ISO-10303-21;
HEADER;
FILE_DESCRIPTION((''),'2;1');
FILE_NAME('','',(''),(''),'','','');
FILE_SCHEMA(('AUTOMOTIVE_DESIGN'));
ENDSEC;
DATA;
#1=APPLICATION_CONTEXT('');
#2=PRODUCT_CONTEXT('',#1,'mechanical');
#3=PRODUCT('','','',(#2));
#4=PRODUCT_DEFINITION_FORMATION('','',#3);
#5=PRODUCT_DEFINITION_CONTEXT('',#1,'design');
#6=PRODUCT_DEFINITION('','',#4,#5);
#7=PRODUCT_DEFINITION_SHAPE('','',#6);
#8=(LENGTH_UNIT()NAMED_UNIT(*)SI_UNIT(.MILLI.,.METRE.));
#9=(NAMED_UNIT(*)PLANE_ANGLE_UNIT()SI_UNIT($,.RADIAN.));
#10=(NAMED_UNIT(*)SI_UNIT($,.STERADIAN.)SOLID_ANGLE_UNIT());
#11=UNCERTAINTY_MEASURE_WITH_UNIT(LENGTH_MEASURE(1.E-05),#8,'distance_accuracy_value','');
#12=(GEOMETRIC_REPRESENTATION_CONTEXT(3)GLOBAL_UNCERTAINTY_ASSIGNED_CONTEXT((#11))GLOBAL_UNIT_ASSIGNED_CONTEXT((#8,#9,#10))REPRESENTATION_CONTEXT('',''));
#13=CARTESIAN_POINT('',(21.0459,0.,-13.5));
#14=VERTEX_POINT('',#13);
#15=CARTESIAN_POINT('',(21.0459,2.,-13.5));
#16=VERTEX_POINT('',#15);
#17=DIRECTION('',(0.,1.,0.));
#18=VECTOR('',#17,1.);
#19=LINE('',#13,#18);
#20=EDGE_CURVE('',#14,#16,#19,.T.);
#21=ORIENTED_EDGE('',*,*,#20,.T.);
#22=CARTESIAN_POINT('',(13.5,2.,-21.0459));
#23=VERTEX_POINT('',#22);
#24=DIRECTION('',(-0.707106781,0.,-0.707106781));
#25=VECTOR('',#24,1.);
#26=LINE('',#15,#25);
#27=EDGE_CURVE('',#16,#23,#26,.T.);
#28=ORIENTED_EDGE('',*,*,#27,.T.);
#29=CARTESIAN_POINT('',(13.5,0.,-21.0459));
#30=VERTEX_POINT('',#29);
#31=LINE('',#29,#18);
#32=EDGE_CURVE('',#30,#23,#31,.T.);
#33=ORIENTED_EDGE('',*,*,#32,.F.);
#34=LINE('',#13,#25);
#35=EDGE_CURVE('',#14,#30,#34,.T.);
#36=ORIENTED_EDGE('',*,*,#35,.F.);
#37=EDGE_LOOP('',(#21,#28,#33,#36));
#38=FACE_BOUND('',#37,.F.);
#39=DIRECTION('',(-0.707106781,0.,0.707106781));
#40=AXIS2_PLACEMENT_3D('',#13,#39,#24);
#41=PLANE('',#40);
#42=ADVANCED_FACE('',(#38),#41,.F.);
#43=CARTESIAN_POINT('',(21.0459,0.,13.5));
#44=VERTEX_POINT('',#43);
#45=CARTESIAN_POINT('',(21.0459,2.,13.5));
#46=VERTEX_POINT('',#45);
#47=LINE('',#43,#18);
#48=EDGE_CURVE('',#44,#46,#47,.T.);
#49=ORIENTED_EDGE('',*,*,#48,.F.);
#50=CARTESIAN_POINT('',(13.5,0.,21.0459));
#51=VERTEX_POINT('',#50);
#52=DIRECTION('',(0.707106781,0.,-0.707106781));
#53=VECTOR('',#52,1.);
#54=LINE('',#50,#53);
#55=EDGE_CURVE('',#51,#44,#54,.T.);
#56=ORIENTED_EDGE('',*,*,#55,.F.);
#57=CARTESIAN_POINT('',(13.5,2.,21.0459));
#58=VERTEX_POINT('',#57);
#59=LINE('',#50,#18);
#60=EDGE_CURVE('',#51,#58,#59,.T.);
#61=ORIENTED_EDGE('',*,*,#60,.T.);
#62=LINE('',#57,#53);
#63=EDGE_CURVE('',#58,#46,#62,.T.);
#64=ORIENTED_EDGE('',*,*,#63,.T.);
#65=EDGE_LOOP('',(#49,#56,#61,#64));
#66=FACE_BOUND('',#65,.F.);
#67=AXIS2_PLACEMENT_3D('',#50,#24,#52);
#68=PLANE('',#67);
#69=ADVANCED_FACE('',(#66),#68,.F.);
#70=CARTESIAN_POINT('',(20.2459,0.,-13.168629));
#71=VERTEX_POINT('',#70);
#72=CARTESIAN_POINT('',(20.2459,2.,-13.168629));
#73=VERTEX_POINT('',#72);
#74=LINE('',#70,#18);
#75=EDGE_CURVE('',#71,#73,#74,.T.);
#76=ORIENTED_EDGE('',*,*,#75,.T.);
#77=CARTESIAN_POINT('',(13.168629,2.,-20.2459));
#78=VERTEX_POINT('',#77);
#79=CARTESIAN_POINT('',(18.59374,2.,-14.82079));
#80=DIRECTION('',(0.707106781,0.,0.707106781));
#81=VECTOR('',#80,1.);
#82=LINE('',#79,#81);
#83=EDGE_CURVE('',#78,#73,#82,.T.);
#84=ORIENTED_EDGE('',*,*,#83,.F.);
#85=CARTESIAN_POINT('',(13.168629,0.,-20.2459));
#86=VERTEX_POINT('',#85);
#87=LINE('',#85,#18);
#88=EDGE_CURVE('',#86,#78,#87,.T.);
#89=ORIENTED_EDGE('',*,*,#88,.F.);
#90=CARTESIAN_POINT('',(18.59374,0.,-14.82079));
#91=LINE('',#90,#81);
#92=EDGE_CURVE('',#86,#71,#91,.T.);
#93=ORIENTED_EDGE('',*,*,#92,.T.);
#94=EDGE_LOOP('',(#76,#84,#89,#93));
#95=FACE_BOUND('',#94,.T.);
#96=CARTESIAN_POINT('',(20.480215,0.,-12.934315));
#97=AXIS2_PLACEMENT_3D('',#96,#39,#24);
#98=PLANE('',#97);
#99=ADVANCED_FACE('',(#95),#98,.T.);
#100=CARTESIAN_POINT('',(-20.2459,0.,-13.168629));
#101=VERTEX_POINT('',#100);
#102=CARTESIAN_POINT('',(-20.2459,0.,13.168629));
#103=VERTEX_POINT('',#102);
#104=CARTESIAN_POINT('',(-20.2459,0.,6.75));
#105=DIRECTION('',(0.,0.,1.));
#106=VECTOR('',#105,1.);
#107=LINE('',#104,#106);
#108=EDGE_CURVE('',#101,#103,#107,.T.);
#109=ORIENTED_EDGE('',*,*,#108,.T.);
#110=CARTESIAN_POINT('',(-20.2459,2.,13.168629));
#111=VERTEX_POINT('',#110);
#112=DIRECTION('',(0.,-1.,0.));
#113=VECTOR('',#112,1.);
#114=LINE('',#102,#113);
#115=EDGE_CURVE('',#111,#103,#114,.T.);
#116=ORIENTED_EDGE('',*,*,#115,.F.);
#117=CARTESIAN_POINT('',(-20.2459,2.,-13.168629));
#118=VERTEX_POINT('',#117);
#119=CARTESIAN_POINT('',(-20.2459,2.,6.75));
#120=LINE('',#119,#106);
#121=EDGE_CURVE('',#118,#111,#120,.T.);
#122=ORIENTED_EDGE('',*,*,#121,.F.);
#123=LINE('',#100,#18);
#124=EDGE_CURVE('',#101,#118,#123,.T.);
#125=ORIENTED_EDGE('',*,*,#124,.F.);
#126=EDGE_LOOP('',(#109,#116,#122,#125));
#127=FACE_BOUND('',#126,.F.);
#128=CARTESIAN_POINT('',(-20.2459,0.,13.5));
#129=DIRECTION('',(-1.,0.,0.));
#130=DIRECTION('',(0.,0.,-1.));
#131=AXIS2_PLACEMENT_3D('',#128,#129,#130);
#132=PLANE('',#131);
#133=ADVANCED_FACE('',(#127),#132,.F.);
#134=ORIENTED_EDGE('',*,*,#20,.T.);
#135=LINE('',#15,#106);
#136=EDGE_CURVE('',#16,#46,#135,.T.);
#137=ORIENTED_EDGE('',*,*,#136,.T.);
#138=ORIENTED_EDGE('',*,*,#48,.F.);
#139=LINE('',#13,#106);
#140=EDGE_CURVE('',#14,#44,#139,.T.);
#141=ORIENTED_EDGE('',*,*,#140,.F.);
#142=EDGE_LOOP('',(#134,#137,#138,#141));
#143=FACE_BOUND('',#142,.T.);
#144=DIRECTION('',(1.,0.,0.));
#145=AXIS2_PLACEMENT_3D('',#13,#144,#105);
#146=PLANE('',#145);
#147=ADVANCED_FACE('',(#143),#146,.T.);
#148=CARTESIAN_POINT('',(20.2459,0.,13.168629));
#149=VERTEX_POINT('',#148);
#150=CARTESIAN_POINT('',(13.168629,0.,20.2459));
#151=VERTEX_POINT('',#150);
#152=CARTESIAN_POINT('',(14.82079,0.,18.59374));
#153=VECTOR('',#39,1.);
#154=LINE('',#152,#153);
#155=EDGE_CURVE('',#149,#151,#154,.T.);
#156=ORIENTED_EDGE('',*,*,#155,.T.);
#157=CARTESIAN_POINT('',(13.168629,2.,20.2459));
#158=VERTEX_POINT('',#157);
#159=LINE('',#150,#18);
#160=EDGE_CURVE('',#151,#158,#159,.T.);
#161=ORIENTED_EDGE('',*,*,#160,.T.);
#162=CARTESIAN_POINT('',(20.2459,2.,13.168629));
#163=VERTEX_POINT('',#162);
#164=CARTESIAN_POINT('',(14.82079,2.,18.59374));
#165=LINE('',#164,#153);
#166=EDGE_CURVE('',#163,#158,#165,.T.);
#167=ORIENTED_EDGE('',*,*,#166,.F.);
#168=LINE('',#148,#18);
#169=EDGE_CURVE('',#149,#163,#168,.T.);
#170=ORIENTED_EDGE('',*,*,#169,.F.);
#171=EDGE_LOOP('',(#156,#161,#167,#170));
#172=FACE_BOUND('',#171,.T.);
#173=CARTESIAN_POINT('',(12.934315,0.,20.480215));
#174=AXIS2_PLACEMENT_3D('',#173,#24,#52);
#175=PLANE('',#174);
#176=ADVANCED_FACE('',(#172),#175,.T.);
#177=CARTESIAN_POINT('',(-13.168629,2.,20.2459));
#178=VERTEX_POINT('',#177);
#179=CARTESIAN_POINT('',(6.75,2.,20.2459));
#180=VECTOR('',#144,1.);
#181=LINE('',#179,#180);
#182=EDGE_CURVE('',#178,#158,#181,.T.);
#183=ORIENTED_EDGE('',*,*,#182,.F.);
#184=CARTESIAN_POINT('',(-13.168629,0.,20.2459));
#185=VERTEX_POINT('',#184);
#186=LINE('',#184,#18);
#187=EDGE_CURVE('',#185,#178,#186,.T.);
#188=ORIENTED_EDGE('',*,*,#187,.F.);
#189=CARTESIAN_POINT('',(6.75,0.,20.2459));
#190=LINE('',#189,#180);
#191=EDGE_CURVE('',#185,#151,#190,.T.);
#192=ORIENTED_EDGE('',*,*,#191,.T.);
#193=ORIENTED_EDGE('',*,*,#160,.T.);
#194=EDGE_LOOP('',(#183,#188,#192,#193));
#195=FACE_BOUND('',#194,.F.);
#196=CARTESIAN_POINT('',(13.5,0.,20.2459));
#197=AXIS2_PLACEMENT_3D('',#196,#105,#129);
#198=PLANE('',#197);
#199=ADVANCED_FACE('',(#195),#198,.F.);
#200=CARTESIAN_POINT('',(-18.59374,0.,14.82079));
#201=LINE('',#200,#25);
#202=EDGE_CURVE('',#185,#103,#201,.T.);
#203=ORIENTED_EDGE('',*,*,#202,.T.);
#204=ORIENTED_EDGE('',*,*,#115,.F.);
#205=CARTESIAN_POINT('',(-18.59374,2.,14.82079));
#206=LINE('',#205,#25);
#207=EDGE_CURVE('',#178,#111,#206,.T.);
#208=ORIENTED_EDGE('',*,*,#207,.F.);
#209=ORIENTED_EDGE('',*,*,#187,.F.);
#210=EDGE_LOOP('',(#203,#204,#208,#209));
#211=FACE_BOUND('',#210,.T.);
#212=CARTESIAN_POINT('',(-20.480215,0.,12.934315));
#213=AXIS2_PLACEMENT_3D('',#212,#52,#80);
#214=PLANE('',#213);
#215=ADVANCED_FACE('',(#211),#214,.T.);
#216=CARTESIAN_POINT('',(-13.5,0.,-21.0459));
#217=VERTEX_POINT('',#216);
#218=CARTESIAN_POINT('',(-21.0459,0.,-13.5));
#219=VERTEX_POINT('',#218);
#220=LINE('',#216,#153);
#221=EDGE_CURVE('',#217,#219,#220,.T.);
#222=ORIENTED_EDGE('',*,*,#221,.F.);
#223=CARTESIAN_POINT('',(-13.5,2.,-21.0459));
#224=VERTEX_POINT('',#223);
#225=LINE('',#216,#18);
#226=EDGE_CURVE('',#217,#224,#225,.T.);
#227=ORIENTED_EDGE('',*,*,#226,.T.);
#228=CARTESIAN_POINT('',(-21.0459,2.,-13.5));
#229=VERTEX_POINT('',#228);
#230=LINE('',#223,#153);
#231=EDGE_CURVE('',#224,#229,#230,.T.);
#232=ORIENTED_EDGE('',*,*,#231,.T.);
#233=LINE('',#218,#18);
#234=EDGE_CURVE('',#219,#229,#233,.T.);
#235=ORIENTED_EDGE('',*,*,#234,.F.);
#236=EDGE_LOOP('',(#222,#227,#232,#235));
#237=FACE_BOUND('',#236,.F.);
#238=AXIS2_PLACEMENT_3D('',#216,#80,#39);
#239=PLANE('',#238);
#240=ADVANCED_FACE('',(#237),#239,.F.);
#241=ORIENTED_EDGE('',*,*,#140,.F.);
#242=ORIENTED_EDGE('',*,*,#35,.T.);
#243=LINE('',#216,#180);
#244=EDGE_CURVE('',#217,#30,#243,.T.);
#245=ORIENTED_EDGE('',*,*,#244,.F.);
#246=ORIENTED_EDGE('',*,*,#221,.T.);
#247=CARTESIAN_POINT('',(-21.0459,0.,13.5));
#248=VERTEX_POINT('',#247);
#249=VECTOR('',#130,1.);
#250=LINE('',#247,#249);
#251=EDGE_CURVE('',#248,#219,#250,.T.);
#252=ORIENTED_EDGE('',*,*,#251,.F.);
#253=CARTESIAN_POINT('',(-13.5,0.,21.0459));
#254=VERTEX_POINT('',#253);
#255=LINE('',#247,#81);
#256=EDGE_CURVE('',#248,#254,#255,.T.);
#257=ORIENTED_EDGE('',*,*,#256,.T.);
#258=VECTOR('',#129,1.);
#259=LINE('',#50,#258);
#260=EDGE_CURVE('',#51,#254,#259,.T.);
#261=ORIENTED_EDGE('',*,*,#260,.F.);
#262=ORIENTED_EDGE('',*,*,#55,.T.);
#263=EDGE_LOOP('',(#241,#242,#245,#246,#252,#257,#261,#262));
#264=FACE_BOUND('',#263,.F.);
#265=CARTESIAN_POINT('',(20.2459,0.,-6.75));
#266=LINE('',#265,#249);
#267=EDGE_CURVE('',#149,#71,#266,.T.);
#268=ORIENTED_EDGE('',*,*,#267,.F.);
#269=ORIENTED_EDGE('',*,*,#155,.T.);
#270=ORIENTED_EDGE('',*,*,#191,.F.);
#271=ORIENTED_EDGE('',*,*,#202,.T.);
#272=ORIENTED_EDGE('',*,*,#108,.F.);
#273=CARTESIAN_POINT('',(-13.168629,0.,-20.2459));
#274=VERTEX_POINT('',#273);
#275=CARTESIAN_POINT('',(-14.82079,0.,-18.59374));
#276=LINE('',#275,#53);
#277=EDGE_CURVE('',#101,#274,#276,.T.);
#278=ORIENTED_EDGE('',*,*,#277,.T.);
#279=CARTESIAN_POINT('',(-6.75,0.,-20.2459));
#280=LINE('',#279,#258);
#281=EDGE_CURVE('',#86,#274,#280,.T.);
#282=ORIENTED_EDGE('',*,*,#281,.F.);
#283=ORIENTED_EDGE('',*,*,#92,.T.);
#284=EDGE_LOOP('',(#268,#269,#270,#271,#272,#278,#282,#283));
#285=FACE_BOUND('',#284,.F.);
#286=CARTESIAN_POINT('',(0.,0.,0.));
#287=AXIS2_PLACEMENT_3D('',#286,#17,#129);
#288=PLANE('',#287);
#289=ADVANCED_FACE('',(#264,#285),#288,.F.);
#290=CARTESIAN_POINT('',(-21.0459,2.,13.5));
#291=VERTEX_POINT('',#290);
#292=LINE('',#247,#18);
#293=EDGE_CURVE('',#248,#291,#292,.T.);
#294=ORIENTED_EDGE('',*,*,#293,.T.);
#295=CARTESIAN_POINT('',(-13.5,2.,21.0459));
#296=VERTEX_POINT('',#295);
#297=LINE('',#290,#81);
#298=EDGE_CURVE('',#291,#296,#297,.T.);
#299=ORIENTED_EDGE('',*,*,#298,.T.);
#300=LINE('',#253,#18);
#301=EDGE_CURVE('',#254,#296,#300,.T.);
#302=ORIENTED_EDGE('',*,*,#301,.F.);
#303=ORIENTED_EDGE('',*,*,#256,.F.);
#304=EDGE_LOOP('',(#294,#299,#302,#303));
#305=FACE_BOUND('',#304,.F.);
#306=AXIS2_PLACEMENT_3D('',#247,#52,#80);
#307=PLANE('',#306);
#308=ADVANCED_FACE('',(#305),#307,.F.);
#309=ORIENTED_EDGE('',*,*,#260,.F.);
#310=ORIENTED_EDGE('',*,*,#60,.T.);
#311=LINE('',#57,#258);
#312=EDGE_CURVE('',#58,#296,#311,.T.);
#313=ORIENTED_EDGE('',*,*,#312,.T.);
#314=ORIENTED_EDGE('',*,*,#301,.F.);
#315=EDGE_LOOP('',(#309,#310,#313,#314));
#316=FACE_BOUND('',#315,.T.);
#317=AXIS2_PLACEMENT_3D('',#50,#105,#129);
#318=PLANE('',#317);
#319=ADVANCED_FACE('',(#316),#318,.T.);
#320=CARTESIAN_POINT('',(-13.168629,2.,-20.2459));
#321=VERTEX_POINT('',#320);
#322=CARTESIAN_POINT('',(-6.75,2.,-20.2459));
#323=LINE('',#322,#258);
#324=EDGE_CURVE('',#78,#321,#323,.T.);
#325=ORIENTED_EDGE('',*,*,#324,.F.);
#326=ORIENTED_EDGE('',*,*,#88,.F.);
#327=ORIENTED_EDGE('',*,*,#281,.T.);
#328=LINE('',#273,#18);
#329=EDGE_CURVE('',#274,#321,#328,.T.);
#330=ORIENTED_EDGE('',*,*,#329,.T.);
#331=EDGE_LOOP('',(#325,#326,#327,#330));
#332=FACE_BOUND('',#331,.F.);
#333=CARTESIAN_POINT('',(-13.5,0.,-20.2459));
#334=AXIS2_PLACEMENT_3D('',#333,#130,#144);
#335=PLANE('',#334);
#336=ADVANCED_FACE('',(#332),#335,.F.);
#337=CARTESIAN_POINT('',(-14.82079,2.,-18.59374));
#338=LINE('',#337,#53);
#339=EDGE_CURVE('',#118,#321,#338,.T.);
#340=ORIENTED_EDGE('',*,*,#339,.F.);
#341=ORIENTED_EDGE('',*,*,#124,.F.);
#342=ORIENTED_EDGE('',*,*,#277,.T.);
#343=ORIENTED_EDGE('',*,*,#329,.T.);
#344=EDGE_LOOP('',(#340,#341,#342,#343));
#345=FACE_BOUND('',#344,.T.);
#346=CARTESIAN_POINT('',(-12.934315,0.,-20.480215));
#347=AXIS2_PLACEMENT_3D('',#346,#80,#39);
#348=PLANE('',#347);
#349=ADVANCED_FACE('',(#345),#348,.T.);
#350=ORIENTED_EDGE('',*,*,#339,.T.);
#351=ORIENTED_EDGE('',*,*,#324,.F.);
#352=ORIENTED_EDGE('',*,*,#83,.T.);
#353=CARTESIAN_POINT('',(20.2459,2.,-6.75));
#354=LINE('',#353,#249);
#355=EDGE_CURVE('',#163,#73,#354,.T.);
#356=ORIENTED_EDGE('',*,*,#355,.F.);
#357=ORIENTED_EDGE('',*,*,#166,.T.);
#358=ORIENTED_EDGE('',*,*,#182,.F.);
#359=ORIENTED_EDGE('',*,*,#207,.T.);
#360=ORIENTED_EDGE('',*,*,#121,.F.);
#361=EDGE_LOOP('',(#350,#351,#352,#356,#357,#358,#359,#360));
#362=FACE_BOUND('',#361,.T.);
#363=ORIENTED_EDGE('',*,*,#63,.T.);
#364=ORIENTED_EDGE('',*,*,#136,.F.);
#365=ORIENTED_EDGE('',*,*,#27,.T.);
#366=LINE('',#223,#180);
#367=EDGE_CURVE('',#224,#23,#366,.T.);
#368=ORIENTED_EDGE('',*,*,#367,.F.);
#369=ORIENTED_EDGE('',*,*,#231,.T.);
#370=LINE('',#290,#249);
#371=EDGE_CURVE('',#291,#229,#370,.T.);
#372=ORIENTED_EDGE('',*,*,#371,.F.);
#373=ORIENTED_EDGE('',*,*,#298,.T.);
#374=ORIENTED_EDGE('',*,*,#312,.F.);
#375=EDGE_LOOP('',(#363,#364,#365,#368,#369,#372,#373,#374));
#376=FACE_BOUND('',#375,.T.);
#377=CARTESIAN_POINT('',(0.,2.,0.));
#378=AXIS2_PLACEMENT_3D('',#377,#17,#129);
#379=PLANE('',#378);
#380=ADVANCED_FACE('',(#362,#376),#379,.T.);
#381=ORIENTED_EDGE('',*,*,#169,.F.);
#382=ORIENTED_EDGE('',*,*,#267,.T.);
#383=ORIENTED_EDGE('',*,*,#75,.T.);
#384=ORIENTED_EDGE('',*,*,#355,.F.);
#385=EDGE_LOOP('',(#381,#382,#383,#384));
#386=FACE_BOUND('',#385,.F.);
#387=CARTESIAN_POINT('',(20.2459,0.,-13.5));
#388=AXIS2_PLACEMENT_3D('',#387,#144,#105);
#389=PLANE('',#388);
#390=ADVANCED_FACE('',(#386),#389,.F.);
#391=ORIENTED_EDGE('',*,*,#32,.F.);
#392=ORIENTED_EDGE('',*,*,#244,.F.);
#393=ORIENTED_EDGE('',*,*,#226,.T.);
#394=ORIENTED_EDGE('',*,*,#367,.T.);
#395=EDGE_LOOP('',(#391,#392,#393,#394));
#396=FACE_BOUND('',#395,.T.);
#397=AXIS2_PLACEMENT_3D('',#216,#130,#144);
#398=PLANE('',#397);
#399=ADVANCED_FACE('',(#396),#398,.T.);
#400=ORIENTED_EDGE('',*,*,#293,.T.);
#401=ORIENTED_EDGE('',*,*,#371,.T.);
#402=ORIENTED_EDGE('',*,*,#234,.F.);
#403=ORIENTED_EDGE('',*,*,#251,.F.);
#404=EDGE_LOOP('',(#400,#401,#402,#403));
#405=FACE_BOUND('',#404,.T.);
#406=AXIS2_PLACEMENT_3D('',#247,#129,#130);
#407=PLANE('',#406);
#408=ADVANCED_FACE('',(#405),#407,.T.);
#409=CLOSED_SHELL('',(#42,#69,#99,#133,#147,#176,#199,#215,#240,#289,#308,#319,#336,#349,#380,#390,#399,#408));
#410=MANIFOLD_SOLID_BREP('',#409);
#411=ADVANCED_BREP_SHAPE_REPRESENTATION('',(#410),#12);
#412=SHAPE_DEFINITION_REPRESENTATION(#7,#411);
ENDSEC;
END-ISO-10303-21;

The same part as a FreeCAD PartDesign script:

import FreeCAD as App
import Part
import Sketcher
from FreeCAD import Vector
Q = App.Units.Quantity


def faces_at(feature, points):
    """Names of the faces that lie closest to the given points."""
    faces = feature.Shape.Faces
    near = lambda p: min(range(len(faces)), key=lambda i: faces[i].distToShape(Part.Vertex(*p))[0])
    return sorted({f"Face{near(p) + 1}" for p in points})

doc = App.newDocument("Part")
body = doc.addObject("PartDesign::Body", "Body")

# Sketch on XZ plane
sketch1 = body.newObject("Sketcher::SketchObject", "Sketch")
sketch1.AttachmentSupport = (doc.getObject("XZ_Plane"), [""])
sketch1.MapMode = "FlatFace"
sketch1.addGeometry([
    Part.LineSegment(Vector(-21, -14, 0), Vector(-21, 14, 0)),  # 0
    Part.LineSegment(Vector(-21, 14, 0), Vector(-14, 21, 0)),  # 1
    Part.LineSegment(Vector(-14, 21, 0), Vector(14, 21, 0)),  # 2
    Part.LineSegment(Vector(14, 21, 0), Vector(21, 14, 0)),  # 3
    Part.LineSegment(Vector(21, 14, 0), Vector(21, -14, 0)),  # 4
    Part.LineSegment(Vector(21, -14, 0), Vector(14, -21, 0)),  # 5
    Part.LineSegment(Vector(14, -21, 0), Vector(-14, -21, 0)),  # 6
    Part.LineSegment(Vector(-14, -21, 0), Vector(-21, -14, 0)),  # 7
], False)
sketch1.addConstraint([
    Sketcher.Constraint("Coincident", 0, 2, 1, 1),
    Sketcher.Constraint("Coincident", 1, 2, 2, 1),
    Sketcher.Constraint("Coincident", 2, 2, 3, 1),
    Sketcher.Constraint("Coincident", 3, 2, 4, 1),
    Sketcher.Constraint("Coincident", 4, 2, 5, 1),
    Sketcher.Constraint("Coincident", 5, 2, 6, 1),
    Sketcher.Constraint("Coincident", 6, 2, 7, 1),
    Sketcher.Constraint("Coincident", 7, 2, 0, 1),
    Sketcher.Constraint("Vertical", 0),
    Sketcher.Constraint("Horizontal", 2),
    Sketcher.Constraint("Vertical", 4),
    Sketcher.Constraint("Horizontal", 6),
    Sketcher.Constraint("Symmetric", 0, 2, 4, 2, -1, 1),
    Sketcher.Constraint("Symmetric", 1, 2, 5, 2, -1, 1),
    Sketcher.Constraint("Perpendicular", 1, 3),
    Sketcher.Constraint("Perpendicular", 5, 7),
    Sketcher.Constraint("Horizontal", 0, 2, 3, 2),
    Sketcher.Constraint("Horizontal", 4, 2, 7, 2),
    Sketcher.Constraint("Vertical", 2, 2, 5, 2),
    Sketcher.Constraint("Equal", 6, 0),
    Sketcher.Constraint("DistanceX", 2, 1, 2, 2, Q("27 mm")),
    Sketcher.Constraint("DistanceX", 0, 2, -1, 1, Q("21.046 mm")),
])
pad1 = body.newObject("PartDesign::Pad", "Pad")
pad1.Profile = sketch1
pad1.Length = 2
pad1.Reversed = True
doc.recompute()

thickness = body.newObject("PartDesign::Thickness", "Thickness")
thickness.Base = (pad1, faces_at(pad1, [(7.015, 0, 4.5), (7.015, 2, 4.5)]))
thickness.Value = 0.8
thickness.Reversed = True
thickness.Join = "Intersection"

doc.recompute()
